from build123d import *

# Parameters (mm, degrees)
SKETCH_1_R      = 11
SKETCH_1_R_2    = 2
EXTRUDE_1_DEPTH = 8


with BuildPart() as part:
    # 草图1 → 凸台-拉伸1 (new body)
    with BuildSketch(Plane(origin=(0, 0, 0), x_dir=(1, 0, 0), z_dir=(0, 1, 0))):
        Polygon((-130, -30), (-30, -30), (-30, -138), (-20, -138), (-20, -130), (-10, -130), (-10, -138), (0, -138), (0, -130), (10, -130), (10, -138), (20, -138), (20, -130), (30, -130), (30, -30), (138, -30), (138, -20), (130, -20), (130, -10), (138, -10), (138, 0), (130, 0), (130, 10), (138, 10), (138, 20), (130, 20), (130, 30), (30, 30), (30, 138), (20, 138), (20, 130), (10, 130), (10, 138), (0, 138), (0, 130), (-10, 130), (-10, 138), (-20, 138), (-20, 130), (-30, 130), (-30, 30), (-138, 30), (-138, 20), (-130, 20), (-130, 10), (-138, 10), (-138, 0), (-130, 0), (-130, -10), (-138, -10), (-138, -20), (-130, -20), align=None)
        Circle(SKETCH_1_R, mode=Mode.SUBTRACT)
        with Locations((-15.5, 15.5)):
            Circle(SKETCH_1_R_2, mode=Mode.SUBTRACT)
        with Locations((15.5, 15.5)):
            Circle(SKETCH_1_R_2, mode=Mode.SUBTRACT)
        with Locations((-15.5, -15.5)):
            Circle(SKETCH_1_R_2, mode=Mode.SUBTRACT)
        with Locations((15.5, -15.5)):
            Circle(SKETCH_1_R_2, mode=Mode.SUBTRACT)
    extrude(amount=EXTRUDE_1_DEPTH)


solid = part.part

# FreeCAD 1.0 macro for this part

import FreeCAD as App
import Part
import Sketcher

V = App.Vector


def add_polygon(sketch, points):
    """Adds a closed chain of lines whose ends are joined by coincident constraints."""
    first, n = sketch.GeometryCount, len(points)
    for a, b in zip(points, points[1:] + points[:1]):
        sketch.addGeometry(Part.LineSegment(App.Vector(*a, 0), App.Vector(*b, 0)), False)
    for i in range(n):
        sketch.addConstraint(Sketcher.Constraint("Coincident", first + i, 2, first + (i + 1) % n, 1))

doc = App.newDocument("Part")
body = doc.addObject("PartDesign::Body", "Body")

# Sketch on XZ plane
sketch1 = body.newObject("Sketcher::SketchObject", "Sketch")
sketch1.AttachmentSupport = (doc.getObject("XZ_Plane"), [""])
sketch1.MapMode = "FlatFace"
add_polygon(sketch1, [(-130, 30), (-30, 30), (-30, 138), (-20, 138), (-20, 130), (-10, 130), (-10, 138), (0, 138), (0, 130), (10, 130), (10, 138), (20, 138), (20, 130), (30, 130), (30, 30), (138, 30), (138, 20), (130, 20), (130, 10), (138, 10), (138, 0), (130, 0), (130, -10), (138, -10), (138, -20), (130, -20), (130, -30), (30, -30), (30, -138), (20, -138), (20, -130), (10, -130), (10, -138), (0, -138), (0, -130), (-10, -130), (-10, -138), (-20, -138), (-20, -130), (-30, -130), (-30, -30), (-138, -30), (-138, -20), (-130, -20), (-130, -10), (-138, -10), (-138, 0), (-130, 0), (-130, 10), (-138, 10), (-138, 20), (-130, 20)])  # lines 0-51
sketch1.addGeometry(Part.Circle(V(-15.5, 15.5, 0), V(0, 0, 1), 2), False)  # 52
sketch1.addGeometry(Part.Circle(V(15.5, 15.5, 0), V(0, 0, 1), 2), False)  # 53
sketch1.addGeometry(Part.Circle(V(-15.5, -15.5, 0), V(0, 0, 1), 2), False)  # 54
sketch1.addGeometry(Part.Circle(V(0, 0, 0), V(0, 0, 1), 11), False)  # 55
sketch1.addGeometry(Part.Circle(V(15.5, -15.5, 0), V(0, 0, 1), 2), False)  # 56
sketch1.addConstraint(Sketcher.Constraint("Horizontal", 0))
sketch1.addConstraint(Sketcher.Constraint("Vertical", 1))
sketch1.addConstraint(Sketcher.Constraint("Horizontal", 2))
sketch1.addConstraint(Sketcher.Constraint("Vertical", 3))
sketch1.addConstraint(Sketcher.Constraint("Horizontal", 4))
sketch1.addConstraint(Sketcher.Constraint("Vertical", 5))
sketch1.addConstraint(Sketcher.Constraint("Horizontal", 6))
sketch1.addConstraint(Sketcher.Constraint("Vertical", 7))
sketch1.addConstraint(Sketcher.Constraint("Horizontal", 8))
sketch1.addConstraint(Sketcher.Constraint("Vertical", 9))
sketch1.addConstraint(Sketcher.Constraint("Horizontal", 10))
sketch1.addConstraint(Sketcher.Constraint("Vertical", 11))
sketch1.addConstraint(Sketcher.Constraint("Horizontal", 12))
sketch1.addConstraint(Sketcher.Constraint("Vertical", 13))
sketch1.addConstraint(Sketcher.Constraint("Horizontal", 14))
sketch1.addConstraint(Sketcher.Constraint("Vertical", 15))
sketch1.addConstraint(Sketcher.Constraint("Horizontal", 16))
sketch1.addConstraint(Sketcher.Constraint("Vertical", 17))
sketch1.addConstraint(Sketcher.Constraint("Horizontal", 18))
sketch1.addConstraint(Sketcher.Constraint("Vertical", 19))
sketch1.addConstraint(Sketcher.Constraint("Horizontal", 20))
sketch1.addConstraint(Sketcher.Constraint("Vertical", 21))
sketch1.addConstraint(Sketcher.Constraint("Horizontal", 22))
sketch1.addConstraint(Sketcher.Constraint("Vertical", 23))
sketch1.addConstraint(Sketcher.Constraint("Horizontal", 24))
sketch1.addConstraint(Sketcher.Constraint("Vertical", 25))
sketch1.addConstraint(Sketcher.Constraint("Horizontal", 26))
sketch1.addConstraint(Sketcher.Constraint("Vertical", 27))
sketch1.addConstraint(Sketcher.Constraint("Horizontal", 28))
sketch1.addConstraint(Sketcher.Constraint("Vertical", 29))
sketch1.addConstraint(Sketcher.Constraint("Horizontal", 30))
sketch1.addConstraint(Sketcher.Constraint("Vertical", 31))
sketch1.addConstraint(Sketcher.Constraint("Horizontal", 32))
sketch1.addConstraint(Sketcher.Constraint("Vertical", 33))
sketch1.addConstraint(Sketcher.Constraint("Horizontal", 34))
sketch1.addConstraint(Sketcher.Constraint("Vertical", 35))
sketch1.addConstraint(Sketcher.Constraint("Horizontal", 36))
sketch1.addConstraint(Sketcher.Constraint("Vertical", 37))
sketch1.addConstraint(Sketcher.Constraint("Horizontal", 38))
sketch1.addConstraint(Sketcher.Constraint("Vertical", 39))
sketch1.addConstraint(Sketcher.Constraint("Horizontal", 40))
sketch1.addConstraint(Sketcher.Constraint("Vertical", 41))
sketch1.addConstraint(Sketcher.Constraint("Horizontal", 42))
sketch1.addConstraint(Sketcher.Constraint("Vertical", 43))
sketch1.addConstraint(Sketcher.Constraint("Horizontal", 44))
sketch1.addConstraint(Sketcher.Constraint("Vertical", 45))
sketch1.addConstraint(Sketcher.Constraint("Horizontal", 46))
sketch1.addConstraint(Sketcher.Constraint("Vertical", 47))
sketch1.addConstraint(Sketcher.Constraint("Horizontal", 48))
sketch1.addConstraint(Sketcher.Constraint("Vertical", 49))
sketch1.addConstraint(Sketcher.Constraint("Horizontal", 50))
sketch1.addConstraint(Sketcher.Constraint("Vertical", 51))
sketch1.addConstraint(Sketcher.Constraint("Coincident", 55, 3, -1, 1))
sketch1.addConstraint(Sketcher.Constraint("Equal", 52, 53))
sketch1.addConstraint(Sketcher.Constraint("Equal", 53, 54))
sketch1.addConstraint(Sketcher.Constraint("Equal", 54, 56))
sketch1.addConstraint(Sketcher.Constraint("Symmetric", 53, 3, 54, 3, -1, 1))
sketch1.addConstraint(Sketcher.Constraint("Symmetric", 52, 3, 56, 3, -1, 1))
sketch1.addConstraint(Sketcher.Constraint("Symmetric", 0, 2, 26, 2, -1, 1))
sketch1.addConstraint(Sketcher.Constraint("Symmetric", 2, 2, 28, 2, -1, 1))
sketch1.addConstraint(Sketcher.Constraint("Symmetric", 4, 2, 30, 2, -1, 1))
sketch1.addConstraint(Sketcher.Constraint("Symmetric", 6, 2, 32, 2, -1, 1))
sketch1.addConstraint(Sketcher.Constraint("Symmetric", 8, 2, 34, 2, -1, 1))
sketch1.addConstraint(Sketcher.Constraint("Symmetric", 10, 2, 36, 2, -1, 1))
sketch1.addConstraint(Sketcher.Constraint("Symmetric", 12, 2, 38, 2, -1, 1))
sketch1.addConstraint(Sketcher.Constraint("Symmetric", 14, 2, 40, 2, -1, 1))
sketch1.addConstraint(Sketcher.Constraint("Symmetric", 16, 2, 42, 2, -1, 1))
sketch1.addConstraint(Sketcher.Constraint("Symmetric", 18, 2, 44, 2, -1, 1))
sketch1.addConstraint(Sketcher.Constraint("Symmetric", 20, 2, 46, 2, -1, 1))
sketch1.addConstraint(Sketcher.Constraint("Symmetric", 22, 2, 48, 2, -1, 1))
sketch1.addConstraint(Sketcher.Constraint("Symmetric", 24, 2, 50, 2, -1, 1))
sketch1.addConstraint(Sketcher.Constraint("Symmetric", 52, 3, 53, 3, -2))
sketch1.addConstraint(Sketcher.Constraint("Symmetric", 4, 2, 8, 2, -2))
sketch1.addConstraint(Sketcher.Constraint("Symmetric", 2, 2, 10, 2, -2))
sketch1.addConstraint(Sketcher.Constraint("Symmetric", 0, 2, 13, 2, -2))
sketch1.addConstraint(Sketcher.Constraint("Symmetric", 23, 2, 41, 2, -2))
sketch1.addConstraint(Sketcher.Constraint("Symmetric", 21, 2, 43, 2, -2))
sketch1.addConstraint(Sketcher.Constraint("PointOnObject", 6, 2, -2))
sketch1.addConstraint(Sketcher.Constraint("PointOnObject", 19, 2, -1))
sketch1.addConstraint(Sketcher.Constraint("Horizontal", 2, 2, 5, 2))
sketch1.addConstraint(Sketcher.Constraint("Horizontal", 8, 2, 11, 2))
sketch1.addConstraint(Sketcher.Constraint("Vertical", 15, 2, 18, 2))
sketch1.addConstraint(Sketcher.Constraint("Vertical", 21, 2, 24, 2))
sketch1.addConstraint(Sketcher.Constraint("Equal", 2, 4))
sketch1.addConstraint(Sketcher.Constraint("Equal", 4, 6))
sketch1.addConstraint(Sketcher.Constraint("Equal", 40, 1))
sketch1.addConstraint(Sketcher.Constraint("Equal", 50, 3))
sketch1.addConstraint(Sketcher.Constraint("Equal", 38, 15))
sketch1.addConstraint(Sketcher.Constraint("Equal", 15, 17))
sketch1.addConstraint(Sketcher.Constraint("Equal", 17, 19))
sketch1.addConstraint(Sketcher.Constraint("Diameter", 52, 4.0))
sketch1.addConstraint(Sketcher.Constraint("Diameter", 55, 22.0))
sketch1.addConstraint(Sketcher.Constraint("DistanceX", 0, 1, 0, 2, 100.0))
sketch1.addConstraint(Sketcher.Constraint("DistanceX", 2, 1, 2, 2, 10.0))
sketch1.addConstraint(Sketcher.Constraint("DistanceX", 14, 1, 14, 2, 108.0))
sketch1.addConstraint(Sketcher.Constraint("DistanceX", 52, 3, 53, 3, 31.0))
sketch1.addConstraint(Sketcher.Constraint("DistanceY", 54, 3, 52, 3, 31.0))
pad1 = body.newObject("PartDesign::Pad", "Pad")
pad1.Profile = sketch1
pad1.Length = 8
pad1.Reversed = True

doc.recompute()
